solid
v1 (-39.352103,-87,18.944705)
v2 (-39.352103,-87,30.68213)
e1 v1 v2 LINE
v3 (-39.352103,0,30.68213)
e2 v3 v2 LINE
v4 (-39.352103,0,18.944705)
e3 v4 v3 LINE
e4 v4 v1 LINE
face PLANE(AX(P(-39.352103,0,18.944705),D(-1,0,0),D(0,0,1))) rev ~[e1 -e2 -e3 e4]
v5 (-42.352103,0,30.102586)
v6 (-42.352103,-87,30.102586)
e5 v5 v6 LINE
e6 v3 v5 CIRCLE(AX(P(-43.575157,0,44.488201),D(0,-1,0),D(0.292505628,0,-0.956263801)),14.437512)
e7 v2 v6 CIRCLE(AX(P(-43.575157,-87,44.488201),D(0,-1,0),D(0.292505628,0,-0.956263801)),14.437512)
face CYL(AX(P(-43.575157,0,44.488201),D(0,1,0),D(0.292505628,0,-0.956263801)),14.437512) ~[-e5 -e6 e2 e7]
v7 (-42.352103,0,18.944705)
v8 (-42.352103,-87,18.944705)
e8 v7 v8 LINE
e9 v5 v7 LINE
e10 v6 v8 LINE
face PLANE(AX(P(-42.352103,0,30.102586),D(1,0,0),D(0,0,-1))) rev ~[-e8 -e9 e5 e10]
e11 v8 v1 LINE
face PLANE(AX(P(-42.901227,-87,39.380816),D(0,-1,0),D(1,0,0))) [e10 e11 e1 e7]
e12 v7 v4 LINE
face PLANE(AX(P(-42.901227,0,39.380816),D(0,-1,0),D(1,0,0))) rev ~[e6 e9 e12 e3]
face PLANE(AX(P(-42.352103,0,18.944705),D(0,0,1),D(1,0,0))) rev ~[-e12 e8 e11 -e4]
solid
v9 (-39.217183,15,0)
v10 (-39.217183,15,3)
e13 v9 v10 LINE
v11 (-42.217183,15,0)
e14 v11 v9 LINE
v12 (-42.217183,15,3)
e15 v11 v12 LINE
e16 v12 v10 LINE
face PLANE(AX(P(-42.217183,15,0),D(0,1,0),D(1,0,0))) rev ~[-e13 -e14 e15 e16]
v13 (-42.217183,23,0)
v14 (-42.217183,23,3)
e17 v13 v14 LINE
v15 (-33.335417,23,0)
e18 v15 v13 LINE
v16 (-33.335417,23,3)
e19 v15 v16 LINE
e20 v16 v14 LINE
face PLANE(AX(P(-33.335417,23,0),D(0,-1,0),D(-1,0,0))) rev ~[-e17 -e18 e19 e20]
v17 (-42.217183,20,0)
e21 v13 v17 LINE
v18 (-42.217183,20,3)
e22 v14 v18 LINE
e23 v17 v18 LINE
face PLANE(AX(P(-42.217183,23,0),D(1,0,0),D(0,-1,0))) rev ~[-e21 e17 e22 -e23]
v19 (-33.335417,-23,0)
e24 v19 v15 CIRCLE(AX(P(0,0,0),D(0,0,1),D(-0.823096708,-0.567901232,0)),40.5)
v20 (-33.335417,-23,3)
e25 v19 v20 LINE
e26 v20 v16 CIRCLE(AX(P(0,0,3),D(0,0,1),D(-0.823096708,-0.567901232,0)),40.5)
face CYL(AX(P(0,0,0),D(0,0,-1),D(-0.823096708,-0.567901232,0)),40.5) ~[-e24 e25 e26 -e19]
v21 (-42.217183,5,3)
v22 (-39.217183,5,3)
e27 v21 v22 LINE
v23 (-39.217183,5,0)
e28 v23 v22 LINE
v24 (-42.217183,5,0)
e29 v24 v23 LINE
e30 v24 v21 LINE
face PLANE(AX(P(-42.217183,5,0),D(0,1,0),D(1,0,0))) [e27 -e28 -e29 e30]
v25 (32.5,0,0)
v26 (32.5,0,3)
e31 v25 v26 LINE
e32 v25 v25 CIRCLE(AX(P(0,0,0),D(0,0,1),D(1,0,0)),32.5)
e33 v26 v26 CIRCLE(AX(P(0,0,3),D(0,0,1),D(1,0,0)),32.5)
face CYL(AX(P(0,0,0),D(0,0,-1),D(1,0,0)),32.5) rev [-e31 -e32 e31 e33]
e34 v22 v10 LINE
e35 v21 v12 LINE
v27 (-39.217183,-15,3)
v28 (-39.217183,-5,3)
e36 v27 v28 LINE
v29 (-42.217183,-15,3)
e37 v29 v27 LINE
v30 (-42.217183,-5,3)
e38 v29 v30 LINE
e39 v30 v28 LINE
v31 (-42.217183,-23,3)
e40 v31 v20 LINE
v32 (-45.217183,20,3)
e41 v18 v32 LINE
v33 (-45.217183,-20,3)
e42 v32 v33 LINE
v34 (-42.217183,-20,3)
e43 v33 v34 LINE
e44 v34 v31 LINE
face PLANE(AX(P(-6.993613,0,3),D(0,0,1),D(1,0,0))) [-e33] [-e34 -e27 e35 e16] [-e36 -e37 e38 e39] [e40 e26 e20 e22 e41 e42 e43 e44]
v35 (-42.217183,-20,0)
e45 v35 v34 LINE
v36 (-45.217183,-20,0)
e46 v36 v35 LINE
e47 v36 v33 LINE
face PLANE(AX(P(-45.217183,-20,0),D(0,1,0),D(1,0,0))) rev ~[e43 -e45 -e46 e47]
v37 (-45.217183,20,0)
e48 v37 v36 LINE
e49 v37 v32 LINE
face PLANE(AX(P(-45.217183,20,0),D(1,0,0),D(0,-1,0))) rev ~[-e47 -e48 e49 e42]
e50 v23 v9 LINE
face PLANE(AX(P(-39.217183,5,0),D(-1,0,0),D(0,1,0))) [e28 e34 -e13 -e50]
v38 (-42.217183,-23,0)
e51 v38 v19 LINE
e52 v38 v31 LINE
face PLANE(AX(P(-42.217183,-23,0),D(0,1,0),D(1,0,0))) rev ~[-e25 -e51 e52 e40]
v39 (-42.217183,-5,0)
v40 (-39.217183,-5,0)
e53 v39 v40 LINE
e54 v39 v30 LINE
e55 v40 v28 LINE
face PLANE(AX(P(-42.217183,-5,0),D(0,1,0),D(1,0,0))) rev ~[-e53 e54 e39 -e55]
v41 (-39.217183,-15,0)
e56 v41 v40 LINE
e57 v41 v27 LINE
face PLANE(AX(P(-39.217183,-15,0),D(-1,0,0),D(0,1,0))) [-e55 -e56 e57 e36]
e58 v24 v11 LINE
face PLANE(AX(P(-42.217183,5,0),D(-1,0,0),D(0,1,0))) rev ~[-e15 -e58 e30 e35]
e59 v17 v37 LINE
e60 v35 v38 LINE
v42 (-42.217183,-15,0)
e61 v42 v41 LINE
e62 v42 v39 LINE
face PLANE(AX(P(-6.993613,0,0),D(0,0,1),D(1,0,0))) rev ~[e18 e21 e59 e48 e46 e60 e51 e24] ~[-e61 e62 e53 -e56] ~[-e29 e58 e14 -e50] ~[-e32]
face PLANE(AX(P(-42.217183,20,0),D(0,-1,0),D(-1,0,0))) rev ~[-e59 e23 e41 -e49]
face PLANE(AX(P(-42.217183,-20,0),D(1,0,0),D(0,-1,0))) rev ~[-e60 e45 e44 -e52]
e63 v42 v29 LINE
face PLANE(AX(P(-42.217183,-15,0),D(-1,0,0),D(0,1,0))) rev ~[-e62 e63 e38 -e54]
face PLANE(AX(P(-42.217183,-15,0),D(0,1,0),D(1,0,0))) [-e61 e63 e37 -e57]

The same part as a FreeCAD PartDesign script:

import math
import FreeCAD as App
import Part
import Sketcher

V = App.Vector
Q = App.Units.Quantity

doc = App.newDocument("Part")
body = doc.addObject("PartDesign::Body", "Body")

sketch1 = body.newObject("Sketcher::SketchObject", "Sketch")
sketch1.AttachmentSupport = (doc.getObject("XY_Plane"), [""])
sketch1.MapMode = "FlatFace"
sketch1.addGeometry(Part.ArcOfCircle(Part.Circle(V(0, 0, 0), V(0, 0, 1), 40.5), math.radians(-145), math.radians(145)), False)
sketch1.addGeometry(Part.LineSegment(V(-33.3, 23, 0), V(-42.2, 23, 0)), False)
sketch1.addGeometry(Part.LineSegment(V(-42.2, 23, 0), V(-42.2, 20, 0)), False)
sketch1.addGeometry(Part.LineSegment(V(-42.2, 20, 0), V(-45.2, 20, 0)), False)
sketch1.addGeometry(Part.LineSegment(V(-45.2, 20, 0), V(-45.2, -20, 0)), False)
sketch1.addGeometry(Part.LineSegment(V(-45.2, -20, 0), V(-42.2, -20, 0)), False)
sketch1.addGeometry(Part.LineSegment(V(-42.2, -20, 0), V(-42.2, -23, 0)), False)
sketch1.addGeometry(Part.LineSegment(V(-42.2, -23, 0), V(-33.3, -23, 0)), False)
sketch1.addGeometry(Part.LineSegment(V(-39.2, -15, 0), V(-42.2, -15, 0)), False)
sketch1.addGeometry(Part.LineSegment(V(-42.2, -15, 0), V(-42.2, -5, 0)), False)
sketch1.addGeometry(Part.LineSegment(V(-42.2, -5, 0), V(-39.2, -5, 0)), False)
sketch1.addGeometry(Part.LineSegment(V(-39.2, -5, 0), V(-39.2, -15, 0)), False)
sketch1.addGeometry(Part.LineSegment(V(-39.2, 5, 0), V(-42.2, 5, 0)), False)
sketch1.addGeometry(Part.LineSegment(V(-42.2, 5, 0), V(-42.2, 15, 0)), False)
sketch1.addGeometry(Part.LineSegment(V(-42.2, 15, 0), V(-39.2, 15, 0)), False)
sketch1.addGeometry(Part.LineSegment(V(-39.2, 15, 0), V(-39.2, 5, 0)), False)
sketch1.addGeometry(Part.Circle(V(0, 0, 0), V(0, 0, 1), 32.5), False)
sketch1.addConstraint(Sketcher.Constraint("Coincident", 0, 2, 1, 1))
sketch1.addConstraint(Sketcher.Constraint("Coincident", 1, 2, 2, 1))
sketch1.addConstraint(Sketcher.Constraint("Coincident", 2, 2, 3, 1))
sketch1.addConstraint(Sketcher.Constraint("Coincident", 3, 2, 4, 1))
sketch1.addConstraint(Sketcher.Constraint("Coincident", 4, 2, 5, 1))
sketch1.addConstraint(Sketcher.Constraint("Coincident", 5, 2, 6, 1))
sketch1.addConstraint(Sketcher.Constraint("Coincident", 6, 2, 7, 1))
sketch1.addConstraint(Sketcher.Constraint("Coincident", 7, 2, 0, 1))
sketch1.addConstraint(Sketcher.Constraint("Coincident", 8, 2, 9, 1))
sketch1.addConstraint(Sketcher.Constraint("Coincident", 9, 2, 10, 1))
sketch1.addConstraint(Sketcher.Constraint("Coincident", 10, 2, 11, 1))
sketch1.addConstraint(Sketcher.Constraint("Coincident", 11, 2, 8, 1))
sketch1.addConstraint(Sketcher.Constraint("Coincident", 12, 2, 13, 1))
sketch1.addConstraint(Sketcher.Constraint("Coincident", 13, 2, 14, 1))
sketch1.addConstraint(Sketcher.Constraint("Coincident", 14, 2, 15, 1))
sketch1.addConstraint(Sketcher.Constraint("Coincident", 15, 2, 12, 1))
sketch1.addConstraint(Sketcher.Constraint("Horizontal", 1))
sketch1.addConstraint(Sketcher.Constraint("Vertical", 2))
sketch1.addConstraint(Sketcher.Constraint("Horizontal", 3))
sketch1.addConstraint(Sketcher.Constraint("Vertical", 4))
sketch1.addConstraint(Sketcher.Constraint("Horizontal", 5))
sketch1.addConstraint(Sketcher.Constraint("Vertical", 6))
sketch1.addConstraint(Sketcher.Constraint("Horizontal", 7))
sketch1.addConstraint(Sketcher.Constraint("Horizontal", 8))
sketch1.addConstraint(Sketcher.Constraint("Vertical", 9))
sketch1.addConstraint(Sketcher.Constraint("Horizontal", 10))
sketch1.addConstraint(Sketcher.Constraint("Vertical", 11))
sketch1.addConstraint(Sketcher.Constraint("Horizontal", 12))
sketch1.addConstraint(Sketcher.Constraint("Vertical", 13))
sketch1.addConstraint(Sketcher.Constraint("Horizontal", 14))
sketch1.addConstraint(Sketcher.Constraint("Vertical", 15))
sketch1.addConstraint(Sketcher.Constraint("Coincident", 0, 3, -1, 1))
sketch1.addConstraint(Sketcher.Constraint("Coincident", 16, 3, -1, 1))
sketch1.addConstraint(Sketcher.Constraint("Symmetric", 2, 2, 5, 2, -1))
sketch1.addConstraint(Sketcher.Constraint("Symmetric", 9, 2, 12, 2, -1))
sketch1.addConstraint(Sketcher.Constraint("Symmetric", 11, 2, 14, 2, -1))
sketch1.addConstraint(Sketcher.Constraint("Vertical", 0, 2, 7, 2))
sketch1.addConstraint(Sketcher.Constraint("Vertical", 6, 2, 8, 2))
sketch1.addConstraint(Sketcher.Constraint("Equal", 5, 8))
sketch1.addConstraint(Sketcher.Constraint("Equal", 14, 2))
sketch1.addConstraint(Sketcher.Constraint("Diameter", 16, Q("65 mm")))
sketch1.addConstraint(Sketcher.Constraint("Radius", 0, Q("40.5 mm")))
sketch1.addConstraint(Sketcher.Constraint("DistanceX", 3, 2, 3, 1, Q("3 mm")))
sketch1.addConstraint(Sketcher.Constraint("DistanceY", 4, 2, 4, 1, Q("40 mm")))
sketch1.addConstraint(Sketcher.Constraint("DistanceY", 9, 1, 9, 2, Q("10 mm")))
sketch1.addConstraint(Sketcher.Constraint("DistanceY", 8, 2, -1, 1, Q("15 mm")))
sketch1.addConstraint(Sketcher.Constraint("DistanceX", 1, 2, 1, 1, Q("8.881766 mm")))
pad1 = body.newObject("PartDesign::Pad", "Pad")
pad1.Profile = sketch1
pad1.Length = 3
body2 = doc.addObject("PartDesign::Body", "Body001")

sketch2 = body2.newObject("Sketcher::SketchObject", "Sketch001")
sketch2.AttachmentSupport = (doc.getObject("XZ_Plane001"), [""])
sketch2.MapMode = "FlatFace"
sketch2.addGeometry(Part.LineSegment(V(-39.4, 18.9, 0), V(-39.4, 30.7, 0)), False)
sketch2.addGeometry(Part.ArcOfCircle(Part.Circle(V(-43.6, 44.5, 0), V(0, 0, 1), 14.4), math.radians(-73), math.radians(275)), False)
sketch2.addGeometry(Part.LineSegment(V(-42.4, 30.1, 0), V(-42.4, 18.9, 0)), False)
sketch2.addGeometry(Part.LineSegment(V(-42.4, 18.9, 0), V(-39.4, 18.9, 0)), False)
sketch2.addConstraint(Sketcher.Constraint("Coincident", 0, 2, 1, 1))
sketch2.addConstraint(Sketcher.Constraint("Coincident", 1, 2, 2, 1))
sketch2.addConstraint(Sketcher.Constraint("Coincident", 2, 2, 3, 1))
sketch2.addConstraint(Sketcher.Constraint("Coincident", 3, 2, 0, 1))
sketch2.addConstraint(Sketcher.Constraint("Vertical", 0))
sketch2.addConstraint(Sketcher.Constraint("Vertical", 2))
sketch2.addConstraint(Sketcher.Constraint("Horizontal", 3))
sketch2.addConstraint(Sketcher.Constraint("DistanceX", 3, 1, 3, 2, Q("3 mm")))
sketch2.addConstraint(Sketcher.Constraint("Radius", 1, Q("14.437512 mm")))
sketch2.addConstraint(Sketcher.Constraint("DistanceY", 2, 2, 2, 1, Q("11.157881 mm")))
sketch2.addConstraint(Sketcher.Constraint("DistanceY", -1, 1, 1, 3, Q("44.488201 mm")))
sketch2.addConstraint(Sketcher.Constraint("DistanceY", 0, 1, 0, 2, Q("11.737425 mm")))
sketch2.addConstraint(Sketcher.Constraint("DistanceX", 1, 3, -1, 1, Q("43.575157 mm")))
pad2 = body2.newObject("PartDesign::Pad", "Pad001")
pad2.Profile = sketch2
pad2.Length = 87

doc.recompute()
